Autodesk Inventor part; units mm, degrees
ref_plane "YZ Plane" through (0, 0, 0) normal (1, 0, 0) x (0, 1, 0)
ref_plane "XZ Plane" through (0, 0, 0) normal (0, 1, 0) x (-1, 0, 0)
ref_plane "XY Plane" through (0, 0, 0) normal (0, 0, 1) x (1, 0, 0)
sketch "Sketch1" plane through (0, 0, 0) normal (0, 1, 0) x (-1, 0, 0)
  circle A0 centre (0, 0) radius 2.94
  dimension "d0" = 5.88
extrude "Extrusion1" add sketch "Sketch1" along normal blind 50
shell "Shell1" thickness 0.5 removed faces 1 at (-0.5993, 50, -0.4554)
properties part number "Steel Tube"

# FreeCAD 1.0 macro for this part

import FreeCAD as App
import Part
import Sketcher
from FreeCAD import Vector
Q = App.Units.Quantity


def faces_at(feature, points):
    """Names of the faces that lie closest to the given points."""
    faces = feature.Shape.Faces
    near = lambda p: min(range(len(faces)), key=lambda i: faces[i].distToShape(Part.Vertex(*p))[0])
    return sorted({f"Face{near(p) + 1}" for p in points})

doc = App.newDocument("Part")
body = doc.addObject("PartDesign::Body", "Body")

# Sketch on XZ plane
sketch1 = doc.addObject("Sketcher::SketchObject", "Sketch")
body.addObject(sketch1)
sketch1.AttachmentSupport = (doc.XZ_Plane, [""])
sketch1.MapMode = "FlatFace"
sketch1.addGeometry(Part.Circle(Vector(0, 0, 0), Vector(0, 0, 1), 2.9), False)
sketch1.addConstraint(Sketcher.Constraint("Coincident", 0, 3, -1, 1))
sketch1.addConstraint(Sketcher.Constraint("Diameter", 0, Q("5.88 mm")))
pad1 = doc.addObject("PartDesign::Pad", "Pad")
body.addObject(pad1)
pad1.Profile = sketch1
pad1.Length = 50
pad1.Reversed = True
doc.recompute()

thickness = doc.addObject("PartDesign::Thickness", "Thickness")
body.addObject(thickness)
thickness.Base = (pad1, faces_at(pad1, [(-0.599, 50, -0.455)]))
thickness.Value = 0.5
thickness.Reversed = True
thickness.Join = "Intersection"

doc.recompute()
